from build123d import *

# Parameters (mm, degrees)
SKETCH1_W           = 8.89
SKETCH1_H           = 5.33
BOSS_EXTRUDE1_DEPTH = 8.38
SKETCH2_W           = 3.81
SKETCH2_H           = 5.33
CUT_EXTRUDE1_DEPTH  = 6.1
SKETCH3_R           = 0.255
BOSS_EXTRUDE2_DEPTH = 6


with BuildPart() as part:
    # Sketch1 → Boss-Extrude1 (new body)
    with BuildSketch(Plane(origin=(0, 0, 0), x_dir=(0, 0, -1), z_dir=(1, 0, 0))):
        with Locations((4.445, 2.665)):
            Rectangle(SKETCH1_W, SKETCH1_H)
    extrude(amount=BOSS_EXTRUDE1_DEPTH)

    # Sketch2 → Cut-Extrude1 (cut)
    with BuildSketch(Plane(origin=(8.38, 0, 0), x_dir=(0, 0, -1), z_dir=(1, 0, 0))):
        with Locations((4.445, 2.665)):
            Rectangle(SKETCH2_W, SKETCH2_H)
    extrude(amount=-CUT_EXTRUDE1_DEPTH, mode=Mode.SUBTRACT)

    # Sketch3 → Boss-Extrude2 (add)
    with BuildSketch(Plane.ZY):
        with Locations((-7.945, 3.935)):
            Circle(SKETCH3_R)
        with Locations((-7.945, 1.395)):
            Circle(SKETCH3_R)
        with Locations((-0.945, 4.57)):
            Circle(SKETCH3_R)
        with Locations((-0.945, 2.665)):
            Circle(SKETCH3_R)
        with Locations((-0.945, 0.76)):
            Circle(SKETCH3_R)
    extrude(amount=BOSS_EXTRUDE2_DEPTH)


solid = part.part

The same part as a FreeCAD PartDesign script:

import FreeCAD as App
import Part
import Sketcher

V = App.Vector


def add_polygon(sketch, points):
    """Adds a closed chain of lines whose ends are joined by coincident constraints."""
    first, n = sketch.GeometryCount, len(points)
    for a, b in zip(points, points[1:] + points[:1]):
        sketch.addGeometry(Part.LineSegment(App.Vector(*a, 0), App.Vector(*b, 0)), False)
    for i in range(n):
        sketch.addConstraint(Sketcher.Constraint("Coincident", first + i, 2, first + (i + 1) % n, 1))

doc = App.newDocument("Part")
body = doc.addObject("PartDesign::Body", "Body")

# Sketch on YZ plane
sketch1 = doc.addObject("Sketcher::SketchObject", "Sketch")
body.addObject(sketch1)
sketch1.AttachmentSupport = (doc.YZ_Plane, [""])
sketch1.MapMode = "FlatFace"
add_polygon(sketch1, [(5.33, 0), (0, 0), (0, -8.89), (5.33, -8.89)])  # lines 0-3
sketch1.addConstraint(Sketcher.Constraint("Horizontal", 0))
sketch1.addConstraint(Sketcher.Constraint("Vertical", 1))
sketch1.addConstraint(Sketcher.Constraint("Horizontal", 2))
sketch1.addConstraint(Sketcher.Constraint("Vertical", 3))
sketch1.addConstraint(Sketcher.Constraint("Coincident", 0, 2, -1, 1))
sketch1.addConstraint(Sketcher.Constraint("DistanceX", 0, 2, 0, 1, 5.33))
sketch1.addConstraint(Sketcher.Constraint("DistanceY", 1, 2, 1, 1, 8.89))
pad1 = doc.addObject("PartDesign::Pad", "Pad")
body.addObject(pad1)
pad1.Profile = sketch1
pad1.Length = 8.38

# Sketch on YZ plane
sketch2 = doc.addObject("Sketcher::SketchObject", "Sketch001")
body.addObject(sketch2)
sketch2.AttachmentSupport = (doc.YZ_Plane, [""])
sketch2.MapMode = "FlatFace"
sketch2.AttachmentOffset = App.Placement(V(0, 0, 8.38), App.Rotation())
add_polygon(sketch2, [(5.33, -2.54), (0, -2.54), (0, -6.35), (5.33, -6.35)])  # lines 0-3
sketch2.addConstraint(Sketcher.Constraint("Horizontal", 0))
sketch2.addConstraint(Sketcher.Constraint("Vertical", 1))
sketch2.addConstraint(Sketcher.Constraint("Horizontal", 2))
sketch2.addConstraint(Sketcher.Constraint("Vertical", 3))
sketch2.addConstraint(Sketcher.Constraint("PointOnObject", 0, 2, -2))
sketch2.addConstraint(Sketcher.Constraint("DistanceX", 0, 2, 0, 1, 5.33))
sketch2.addConstraint(Sketcher.Constraint("DistanceY", 1, 2, 1, 1, 3.81))
sketch2.addConstraint(Sketcher.Constraint("DistanceY", 0, 2, -1, 1, 2.54))
pocket1 = doc.addObject("PartDesign::Pocket", "Pocket")
body.addObject(pocket1)
pocket1.Profile = sketch2
pocket1.Length = 6.1

# Sketch on YZ plane
sketch3 = doc.addObject("Sketcher::SketchObject", "Sketch002")
body.addObject(sketch3)
sketch3.AttachmentSupport = (doc.YZ_Plane, [""])
sketch3.MapMode = "FlatFace"
sketch3.addGeometry(Part.Circle(V(3.935, -7.945, 0), V(0, 0, 1), 0.255), False)
sketch3.addGeometry(Part.Circle(V(1.395, -7.945, 0), V(0, 0, 1), 0.255), False)
sketch3.addGeometry(Part.Circle(V(4.57, -0.945, 0), V(0, 0, 1), 0.255), False)
sketch3.addGeometry(Part.Circle(V(2.665, -0.945, 0), V(0, 0, 1), 0.255), False)
sketch3.addGeometry(Part.Circle(V(0.76, -0.945, 0), V(0, 0, 1), 0.255), False)
sketch3.addConstraint(Sketcher.Constraint("Equal", 0, 1))
sketch3.addConstraint(Sketcher.Constraint("Equal", 1, 2))
sketch3.addConstraint(Sketcher.Constraint("Equal", 2, 3))
sketch3.addConstraint(Sketcher.Constraint("Equal", 3, 4))
sketch3.addConstraint(Sketcher.Constraint("Horizontal", 0, 3, 1, 3))
sketch3.addConstraint(Sketcher.Constraint("Horizontal", 2, 3, 3, 3))
sketch3.addConstraint(Sketcher.Constraint("Horizontal", 3, 3, 4, 3))
sketch3.addConstraint(Sketcher.Constraint("Diameter", 0, 0.51))
sketch3.addConstraint(Sketcher.Constraint("DistanceY", 0, 3, 2, 3, 7.0))
sketch3.addConstraint(Sketcher.Constraint("DistanceX", -1, 1, 2, 3, 4.57))
sketch3.addConstraint(Sketcher.Constraint("DistanceX", -1, 1, 4, 3, 0.76))
sketch3.addConstraint(Sketcher.Constraint("DistanceX", 1, 3, 0, 3, 2.54))
sketch3.addConstraint(Sketcher.Constraint("DistanceX", 3, 3, 0, 3, 1.27))
sketch3.addConstraint(Sketcher.Constraint("DistanceX", -1, 1, 0, 3, 3.935))
sketch3.addConstraint(Sketcher.Constraint("DistanceY", 0, 3, -1, 1, 7.945))
pad2 = doc.addObject("PartDesign::Pad", "Pad001")
body.addObject(pad2)
pad2.Profile = sketch3
pad2.Length = 6
pad2.Reversed = True

doc.recompute()
